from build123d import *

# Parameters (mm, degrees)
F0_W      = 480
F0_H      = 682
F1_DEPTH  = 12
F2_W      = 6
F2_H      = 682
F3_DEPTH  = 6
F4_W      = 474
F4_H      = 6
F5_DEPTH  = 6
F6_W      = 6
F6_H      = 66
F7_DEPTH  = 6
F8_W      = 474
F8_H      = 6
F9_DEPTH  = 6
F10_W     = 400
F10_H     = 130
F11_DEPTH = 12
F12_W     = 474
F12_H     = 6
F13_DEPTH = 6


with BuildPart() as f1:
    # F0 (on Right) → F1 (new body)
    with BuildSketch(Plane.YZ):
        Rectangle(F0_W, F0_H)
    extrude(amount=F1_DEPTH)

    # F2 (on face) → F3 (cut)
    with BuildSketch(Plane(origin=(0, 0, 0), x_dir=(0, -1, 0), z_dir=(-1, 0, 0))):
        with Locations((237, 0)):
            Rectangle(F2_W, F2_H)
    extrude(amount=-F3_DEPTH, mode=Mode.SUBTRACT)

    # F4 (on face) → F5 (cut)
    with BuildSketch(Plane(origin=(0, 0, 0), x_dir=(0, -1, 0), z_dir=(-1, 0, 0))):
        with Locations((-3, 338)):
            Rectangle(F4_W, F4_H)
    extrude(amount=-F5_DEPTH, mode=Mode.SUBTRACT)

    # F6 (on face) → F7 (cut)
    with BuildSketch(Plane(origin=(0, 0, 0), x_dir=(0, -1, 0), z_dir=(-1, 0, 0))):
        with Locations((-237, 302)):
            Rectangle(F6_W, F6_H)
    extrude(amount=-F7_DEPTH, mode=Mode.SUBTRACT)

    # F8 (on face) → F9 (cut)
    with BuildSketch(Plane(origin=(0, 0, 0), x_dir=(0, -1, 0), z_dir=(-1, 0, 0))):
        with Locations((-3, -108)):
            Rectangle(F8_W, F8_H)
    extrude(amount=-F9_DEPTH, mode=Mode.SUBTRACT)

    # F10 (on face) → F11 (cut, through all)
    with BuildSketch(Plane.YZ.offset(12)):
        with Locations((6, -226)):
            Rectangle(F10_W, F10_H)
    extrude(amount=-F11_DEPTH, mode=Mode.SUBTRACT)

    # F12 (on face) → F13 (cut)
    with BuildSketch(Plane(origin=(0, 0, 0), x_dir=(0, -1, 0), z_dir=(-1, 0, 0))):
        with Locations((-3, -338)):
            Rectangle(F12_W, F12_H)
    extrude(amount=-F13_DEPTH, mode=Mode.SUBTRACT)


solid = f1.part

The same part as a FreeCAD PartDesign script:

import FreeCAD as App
import Part
import Sketcher
Q = App.Units.Quantity


def add_polygon(sketch, points):
    """Adds a closed chain of lines whose ends are joined by coincident constraints."""
    first, n = sketch.GeometryCount, len(points)
    for a, b in zip(points, points[1:] + points[:1]):
        sketch.addGeometry(Part.LineSegment(App.Vector(*a, 0), App.Vector(*b, 0)), False)
    for i in range(n):
        sketch.addConstraint(Sketcher.Constraint("Coincident", first + i, 2, first + (i + 1) % n, 1))

doc = App.newDocument("Part")
body = doc.addObject("PartDesign::Body", "Body")

# Sketch on YZ plane
sketch1 = body.newObject("Sketcher::SketchObject", "Sketch")
sketch1.AttachmentSupport = (doc.getObject("YZ_Plane"), [""])
sketch1.MapMode = "FlatFace"
add_polygon(sketch1, [(-240, 341), (-240, -341), (240, -341), (240, 341)])  # lines 0-3
sketch1.addConstraint(Sketcher.Constraint("Vertical", 0))
sketch1.addConstraint(Sketcher.Constraint("Horizontal", 1))
sketch1.addConstraint(Sketcher.Constraint("Vertical", 2))
sketch1.addConstraint(Sketcher.Constraint("Horizontal", 3))
sketch1.addConstraint(Sketcher.Constraint("Symmetric", 0, 2, 2, 2, -1, 1))
sketch1.addConstraint(Sketcher.Constraint("DistanceX", 1, 1, 1, 2, Q("480 mm")))
sketch1.addConstraint(Sketcher.Constraint("DistanceY", 0, 2, 0, 1, Q("682 mm")))
pad1 = body.newObject("PartDesign::Pad", "Pad")
pad1.Profile = sketch1
pad1.Length = 12

# Sketch on YZ plane
sketch2 = body.newObject("Sketcher::SketchObject", "Sketch001")
sketch2.AttachmentSupport = (doc.getObject("YZ_Plane"), [""])
sketch2.MapMode = "FlatFace"
add_polygon(sketch2, [(-234, 341), (-234, -341), (-240, -341), (-240, 341)])  # lines 0-3
sketch2.addConstraint(Sketcher.Constraint("Vertical", 0))
sketch2.addConstraint(Sketcher.Constraint("Horizontal", 1))
sketch2.addConstraint(Sketcher.Constraint("Vertical", 2))
sketch2.addConstraint(Sketcher.Constraint("Horizontal", 3))
sketch2.addConstraint(Sketcher.Constraint("DistanceX", 1, 2, 1, 1, Q("6 mm")))
sketch2.addConstraint(Sketcher.Constraint("DistanceY", 0, 2, 0, 1, Q("682 mm")))
sketch2.addConstraint(Sketcher.Constraint("DistanceX", 0, 2, -1, 1, Q("234 mm")))
sketch2.addConstraint(Sketcher.Constraint("DistanceY", 0, 2, -1, 1, Q("341 mm")))
pocket1 = body.newObject("PartDesign::Pocket", "Pocket")
pocket1.Profile = sketch2
pocket1.Length = 6
pocket1.Reversed = True

# Sketch on YZ plane
sketch3 = body.newObject("Sketcher::SketchObject", "Sketch002")
sketch3.AttachmentSupport = (doc.getObject("YZ_Plane"), [""])
sketch3.MapMode = "FlatFace"
add_polygon(sketch3, [(240, 341), (240, 335), (-234, 335), (-234, 341)])  # lines 0-3
sketch3.addConstraint(Sketcher.Constraint("Vertical", 0))
sketch3.addConstraint(Sketcher.Constraint("Horizontal", 1))
sketch3.addConstraint(Sketcher.Constraint("Vertical", 2))
sketch3.addConstraint(Sketcher.Constraint("Horizontal", 3))
sketch3.addConstraint(Sketcher.Constraint("DistanceX", 1, 2, 1, 1, Q("474 mm")))
sketch3.addConstraint(Sketcher.Constraint("DistanceY", 0, 2, 0, 1, Q("6 mm")))
sketch3.addConstraint(Sketcher.Constraint("DistanceX", -1, 1, 0, 2, Q("240 mm")))
sketch3.addConstraint(Sketcher.Constraint("DistanceY", -1, 1, 0, 2, Q("335 mm")))
pocket2 = body.newObject("PartDesign::Pocket", "Pocket001")
pocket2.Profile = sketch3
pocket2.Length = 6
pocket2.Reversed = True

# Sketch on YZ plane
sketch4 = body.newObject("Sketcher::SketchObject", "Sketch003")
sketch4.AttachmentSupport = (doc.getObject("YZ_Plane"), [""])
sketch4.MapMode = "FlatFace"
add_polygon(sketch4, [(240, 335), (240, 269), (234, 269), (234, 335)])  # lines 0-3
sketch4.addConstraint(Sketcher.Constraint("Vertical", 0))
sketch4.addConstraint(Sketcher.Constraint("Horizontal", 1))
sketch4.addConstraint(Sketcher.Constraint("Vertical", 2))
sketch4.addConstraint(Sketcher.Constraint("Horizontal", 3))
sketch4.addConstraint(Sketcher.Constraint("DistanceX", 1, 2, 1, 1, Q("6 mm")))
sketch4.addConstraint(Sketcher.Constraint("DistanceY", 0, 2, 0, 1, Q("66 mm")))
sketch4.addConstraint(Sketcher.Constraint("DistanceX", -1, 1, 0, 2, Q("240 mm")))
sketch4.addConstraint(Sketcher.Constraint("DistanceY", -1, 1, 0, 2, Q("269 mm")))
pocket3 = body.newObject("PartDesign::Pocket", "Pocket002")
pocket3.Profile = sketch4
pocket3.Length = 6
pocket3.Reversed = True

# Sketch on YZ plane
sketch5 = body.newObject("Sketcher::SketchObject", "Sketch004")
sketch5.AttachmentSupport = (doc.getObject("YZ_Plane"), [""])
sketch5.MapMode = "FlatFace"
add_polygon(sketch5, [(240, -105), (240, -111), (-234, -111), (-234, -105)])  # lines 0-3
sketch5.addConstraint(Sketcher.Constraint("Vertical", 0))
sketch5.addConstraint(Sketcher.Constraint("Horizontal", 1))
sketch5.addConstraint(Sketcher.Constraint("Vertical", 2))
sketch5.addConstraint(Sketcher.Constraint("Horizontal", 3))
sketch5.addConstraint(Sketcher.Constraint("DistanceX", 1, 2, 1, 1, Q("474 mm")))
sketch5.addConstraint(Sketcher.Constraint("DistanceY", 0, 2, 0, 1, Q("6 mm")))
sketch5.addConstraint(Sketcher.Constraint("DistanceX", -1, 1, 0, 2, Q("240 mm")))
sketch5.addConstraint(Sketcher.Constraint("DistanceY", 0, 2, -1, 1, Q("111 mm")))
pocket4 = body.newObject("PartDesign::Pocket", "Pocket003")
pocket4.Profile = sketch5
pocket4.Length = 6
pocket4.Reversed = True

# Sketch on YZ plane
sketch6 = body.newObject("Sketcher::SketchObject", "Sketch005")
sketch6.AttachmentSupport = (doc.getObject("YZ_Plane"), [""])
sketch6.MapMode = "FlatFace"
sketch6.AttachmentOffset = App.Placement(App.Vector(0, 0, 12), App.Rotation())
add_polygon(sketch6, [(-194, -161), (-194, -291), (206, -291), (206, -161)])  # lines 0-3
sketch6.addConstraint(Sketcher.Constraint("Vertical", 0))
sketch6.addConstraint(Sketcher.Constraint("Horizontal", 1))
sketch6.addConstraint(Sketcher.Constraint("Vertical", 2))
sketch6.addConstraint(Sketcher.Constraint("Horizontal", 3))
sketch6.addConstraint(Sketcher.Constraint("DistanceX", 1, 1, 1, 2, Q("400 mm")))
sketch6.addConstraint(Sketcher.Constraint("DistanceY", 0, 2, 0, 1, Q("130 mm")))
sketch6.addConstraint(Sketcher.Constraint("DistanceX", 0, 2, -1, 1, Q("194 mm")))
sketch6.addConstraint(Sketcher.Constraint("DistanceY", 0, 2, -1, 1, Q("291 mm")))
pocket5 = body.newObject("PartDesign::Pocket", "Pocket004")
pocket5.Profile = sketch6
pocket5.Type = "ThroughAll"

# Sketch on YZ plane
sketch7 = body.newObject("Sketcher::SketchObject", "Sketch006")
sketch7.AttachmentSupport = (doc.getObject("YZ_Plane"), [""])
sketch7.MapMode = "FlatFace"
add_polygon(sketch7, [(240, -335), (240, -341), (-234, -341), (-234, -335)])  # lines 0-3
sketch7.addConstraint(Sketcher.Constraint("Vertical", 0))
sketch7.addConstraint(Sketcher.Constraint("Horizontal", 1))
sketch7.addConstraint(Sketcher.Constraint("Vertical", 2))
sketch7.addConstraint(Sketcher.Constraint("Horizontal", 3))
sketch7.addConstraint(Sketcher.Constraint("DistanceX", 1, 2, 1, 1, Q("474 mm")))
sketch7.addConstraint(Sketcher.Constraint("DistanceY", 0, 2, 0, 1, Q("6 mm")))
sketch7.addConstraint(Sketcher.Constraint("DistanceX", -1, 1, 0, 2, Q("240 mm")))
sketch7.addConstraint(Sketcher.Constraint("DistanceY", 0, 2, -1, 1, Q("341 mm")))
pocket6 = body.newObject("PartDesign::Pocket", "Pocket005")
pocket6.Profile = sketch7
pocket6.Length = 6
pocket6.Reversed = True

doc.recompute()
